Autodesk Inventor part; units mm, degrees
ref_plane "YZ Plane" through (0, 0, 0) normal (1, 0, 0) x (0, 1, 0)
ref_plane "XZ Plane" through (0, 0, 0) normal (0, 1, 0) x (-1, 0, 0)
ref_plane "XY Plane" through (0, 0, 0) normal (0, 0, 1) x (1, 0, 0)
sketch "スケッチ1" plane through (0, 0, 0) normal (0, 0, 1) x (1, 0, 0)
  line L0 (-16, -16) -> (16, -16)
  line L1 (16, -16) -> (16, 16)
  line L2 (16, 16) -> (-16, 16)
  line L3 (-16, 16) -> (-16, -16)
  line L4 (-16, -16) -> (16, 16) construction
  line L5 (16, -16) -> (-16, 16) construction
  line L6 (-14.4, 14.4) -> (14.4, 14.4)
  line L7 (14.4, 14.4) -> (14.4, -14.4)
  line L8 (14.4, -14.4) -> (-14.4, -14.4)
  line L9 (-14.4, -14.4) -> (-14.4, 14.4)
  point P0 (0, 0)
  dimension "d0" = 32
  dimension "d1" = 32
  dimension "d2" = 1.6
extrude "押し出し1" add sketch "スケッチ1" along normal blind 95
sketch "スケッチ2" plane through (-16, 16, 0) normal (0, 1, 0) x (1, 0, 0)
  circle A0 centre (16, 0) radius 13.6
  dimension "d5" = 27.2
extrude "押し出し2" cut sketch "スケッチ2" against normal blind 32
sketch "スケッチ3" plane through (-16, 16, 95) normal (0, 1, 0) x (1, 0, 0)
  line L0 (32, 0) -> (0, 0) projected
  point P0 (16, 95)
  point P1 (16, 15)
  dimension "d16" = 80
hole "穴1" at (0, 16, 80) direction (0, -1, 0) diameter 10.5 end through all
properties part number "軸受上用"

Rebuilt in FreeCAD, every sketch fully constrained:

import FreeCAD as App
import Part
import Sketcher

V = App.Vector
Q = App.Units.Quantity


def add_polygon(sketch, points):
    """Adds a closed chain of lines whose ends are joined by coincident constraints."""
    first, n = sketch.GeometryCount, len(points)
    for a, b in zip(points, points[1:] + points[:1]):
        sketch.addGeometry(Part.LineSegment(App.Vector(*a, 0), App.Vector(*b, 0)), False)
    for i in range(n):
        sketch.addConstraint(Sketcher.Constraint("Coincident", first + i, 2, first + (i + 1) % n, 1))

doc = App.newDocument("Part")
params = doc.addObject("Spreadsheet::Sheet", "Params")
for row, (alias, value) in enumerate([
    ("sketch1_width", "32 mm"),
    ("pad1_length", "95 mm"),
    ("sketch2_diameter", "27.2 mm"),
    ("pocket1_length", "32 mm"),
    ("sketch3_diameter", "10.5 mm"),
    ("hole_diameter", "10.5 mm"),
], start=1):
    params.set(f"A{row}", alias)
    params.set(f"B{row}", "=" + value)
    params.setAlias(f"B{row}", alias)

body = doc.addObject("PartDesign::Body", "Body")

sketch1 = doc.addObject("Sketcher::SketchObject", "Sketch")
body.addObject(sketch1)
sketch1.AttachmentSupport = (doc.XY_Plane, [""])
sketch1.MapMode = "FlatFace"
add_polygon(sketch1, [(-16, 16), (-16, -16), (16, -16), (16, 16)])
add_polygon(sketch1, [(-14, -14), (-14, 14), (14, 14), (14, -14)])
sketch1.addConstraint([
    Sketcher.Constraint("Vertical", 0),
    Sketcher.Constraint("Horizontal", 1),
    Sketcher.Constraint("Vertical", 2),
    Sketcher.Constraint("Horizontal", 3),
    Sketcher.Constraint("Vertical", 4),
    Sketcher.Constraint("Horizontal", 5),
    Sketcher.Constraint("Vertical", 6),
    Sketcher.Constraint("Horizontal", 7),
    Sketcher.Constraint("Symmetric", 0, 2, 2, 2, -1, 1),
    Sketcher.Constraint("Symmetric", 4, 2, 6, 2, -1, 1),
    Sketcher.Constraint("Equal", 3, 0),
    Sketcher.Constraint("Equal", 7, 4),
    Sketcher.Constraint("DistanceX", 1, 1, 1, 2, Q("32 mm")),
    Sketcher.Constraint("DistanceX", 3, 2, 4, 2, Q("1.6 mm")),
])
sketch1.setExpression("Constraints[20]", "Params.sketch1_width")
pad1 = doc.addObject("PartDesign::Pad", "Pad")
body.addObject(pad1)
pad1.Profile = sketch1
pad1.setExpression("Length", "Params.pad1_length")

sketch2 = doc.addObject("Sketcher::SketchObject", "Sketch001")
body.addObject(sketch2)
sketch2.AttachmentSupport = (doc.XZ_Plane, [""])
sketch2.MapMode = "FlatFace"
sketch2.AttachmentOffset = App.Placement(V(0, 0, -16), App.Rotation())
sketch2.addGeometry(Part.Circle(V(0, 0, 0), V(0, 0, 1), 14), False)
sketch2.addConstraint([
    Sketcher.Constraint("Coincident", 0, 3, -1, 1),
    Sketcher.Constraint("Diameter", 0, Q("27.2 mm")),
])
sketch2.setExpression("Constraints[1]", "Params.sketch2_diameter")
pocket1 = doc.addObject("PartDesign::Pocket", "Pocket")
body.addObject(pocket1)
pocket1.Profile = sketch2
pocket1.setExpression("Length", "Params.pocket1_length")
pocket1.Reversed = True

sketch3 = doc.addObject("Sketcher::SketchObject", "Sketch002")
body.addObject(sketch3)
sketch3.AttachmentSupport = (doc.XZ_Plane, [""])
sketch3.MapMode = "FlatFace"
sketch3.AttachmentOffset = App.Placement(V(0, 0, -16), App.Rotation())
sketch3.addGeometry(Part.Circle(V(0, 80, 0), V(0, 0, 1), 5), False)
sketch3.addConstraint([
    Sketcher.Constraint("PointOnObject", 0, 3, -2),
    Sketcher.Constraint("Diameter", 0, Q("10.5 mm")),
    Sketcher.Constraint("DistanceY", -1, 1, 0, 3, Q("80 mm")),
])
sketch3.setExpression("Constraints[1]", "Params.sketch3_diameter")
doc.recompute()
hole = doc.addObject("PartDesign::Hole", "Hole")
body.addObject(hole)
hole.Profile = sketch3
hole.ThreadType = "None"
hole.setExpression("Diameter", "Params.hole_diameter")
hole.DepthType = "ThroughAll"
hole.Reversed = True

doc.recompute()
